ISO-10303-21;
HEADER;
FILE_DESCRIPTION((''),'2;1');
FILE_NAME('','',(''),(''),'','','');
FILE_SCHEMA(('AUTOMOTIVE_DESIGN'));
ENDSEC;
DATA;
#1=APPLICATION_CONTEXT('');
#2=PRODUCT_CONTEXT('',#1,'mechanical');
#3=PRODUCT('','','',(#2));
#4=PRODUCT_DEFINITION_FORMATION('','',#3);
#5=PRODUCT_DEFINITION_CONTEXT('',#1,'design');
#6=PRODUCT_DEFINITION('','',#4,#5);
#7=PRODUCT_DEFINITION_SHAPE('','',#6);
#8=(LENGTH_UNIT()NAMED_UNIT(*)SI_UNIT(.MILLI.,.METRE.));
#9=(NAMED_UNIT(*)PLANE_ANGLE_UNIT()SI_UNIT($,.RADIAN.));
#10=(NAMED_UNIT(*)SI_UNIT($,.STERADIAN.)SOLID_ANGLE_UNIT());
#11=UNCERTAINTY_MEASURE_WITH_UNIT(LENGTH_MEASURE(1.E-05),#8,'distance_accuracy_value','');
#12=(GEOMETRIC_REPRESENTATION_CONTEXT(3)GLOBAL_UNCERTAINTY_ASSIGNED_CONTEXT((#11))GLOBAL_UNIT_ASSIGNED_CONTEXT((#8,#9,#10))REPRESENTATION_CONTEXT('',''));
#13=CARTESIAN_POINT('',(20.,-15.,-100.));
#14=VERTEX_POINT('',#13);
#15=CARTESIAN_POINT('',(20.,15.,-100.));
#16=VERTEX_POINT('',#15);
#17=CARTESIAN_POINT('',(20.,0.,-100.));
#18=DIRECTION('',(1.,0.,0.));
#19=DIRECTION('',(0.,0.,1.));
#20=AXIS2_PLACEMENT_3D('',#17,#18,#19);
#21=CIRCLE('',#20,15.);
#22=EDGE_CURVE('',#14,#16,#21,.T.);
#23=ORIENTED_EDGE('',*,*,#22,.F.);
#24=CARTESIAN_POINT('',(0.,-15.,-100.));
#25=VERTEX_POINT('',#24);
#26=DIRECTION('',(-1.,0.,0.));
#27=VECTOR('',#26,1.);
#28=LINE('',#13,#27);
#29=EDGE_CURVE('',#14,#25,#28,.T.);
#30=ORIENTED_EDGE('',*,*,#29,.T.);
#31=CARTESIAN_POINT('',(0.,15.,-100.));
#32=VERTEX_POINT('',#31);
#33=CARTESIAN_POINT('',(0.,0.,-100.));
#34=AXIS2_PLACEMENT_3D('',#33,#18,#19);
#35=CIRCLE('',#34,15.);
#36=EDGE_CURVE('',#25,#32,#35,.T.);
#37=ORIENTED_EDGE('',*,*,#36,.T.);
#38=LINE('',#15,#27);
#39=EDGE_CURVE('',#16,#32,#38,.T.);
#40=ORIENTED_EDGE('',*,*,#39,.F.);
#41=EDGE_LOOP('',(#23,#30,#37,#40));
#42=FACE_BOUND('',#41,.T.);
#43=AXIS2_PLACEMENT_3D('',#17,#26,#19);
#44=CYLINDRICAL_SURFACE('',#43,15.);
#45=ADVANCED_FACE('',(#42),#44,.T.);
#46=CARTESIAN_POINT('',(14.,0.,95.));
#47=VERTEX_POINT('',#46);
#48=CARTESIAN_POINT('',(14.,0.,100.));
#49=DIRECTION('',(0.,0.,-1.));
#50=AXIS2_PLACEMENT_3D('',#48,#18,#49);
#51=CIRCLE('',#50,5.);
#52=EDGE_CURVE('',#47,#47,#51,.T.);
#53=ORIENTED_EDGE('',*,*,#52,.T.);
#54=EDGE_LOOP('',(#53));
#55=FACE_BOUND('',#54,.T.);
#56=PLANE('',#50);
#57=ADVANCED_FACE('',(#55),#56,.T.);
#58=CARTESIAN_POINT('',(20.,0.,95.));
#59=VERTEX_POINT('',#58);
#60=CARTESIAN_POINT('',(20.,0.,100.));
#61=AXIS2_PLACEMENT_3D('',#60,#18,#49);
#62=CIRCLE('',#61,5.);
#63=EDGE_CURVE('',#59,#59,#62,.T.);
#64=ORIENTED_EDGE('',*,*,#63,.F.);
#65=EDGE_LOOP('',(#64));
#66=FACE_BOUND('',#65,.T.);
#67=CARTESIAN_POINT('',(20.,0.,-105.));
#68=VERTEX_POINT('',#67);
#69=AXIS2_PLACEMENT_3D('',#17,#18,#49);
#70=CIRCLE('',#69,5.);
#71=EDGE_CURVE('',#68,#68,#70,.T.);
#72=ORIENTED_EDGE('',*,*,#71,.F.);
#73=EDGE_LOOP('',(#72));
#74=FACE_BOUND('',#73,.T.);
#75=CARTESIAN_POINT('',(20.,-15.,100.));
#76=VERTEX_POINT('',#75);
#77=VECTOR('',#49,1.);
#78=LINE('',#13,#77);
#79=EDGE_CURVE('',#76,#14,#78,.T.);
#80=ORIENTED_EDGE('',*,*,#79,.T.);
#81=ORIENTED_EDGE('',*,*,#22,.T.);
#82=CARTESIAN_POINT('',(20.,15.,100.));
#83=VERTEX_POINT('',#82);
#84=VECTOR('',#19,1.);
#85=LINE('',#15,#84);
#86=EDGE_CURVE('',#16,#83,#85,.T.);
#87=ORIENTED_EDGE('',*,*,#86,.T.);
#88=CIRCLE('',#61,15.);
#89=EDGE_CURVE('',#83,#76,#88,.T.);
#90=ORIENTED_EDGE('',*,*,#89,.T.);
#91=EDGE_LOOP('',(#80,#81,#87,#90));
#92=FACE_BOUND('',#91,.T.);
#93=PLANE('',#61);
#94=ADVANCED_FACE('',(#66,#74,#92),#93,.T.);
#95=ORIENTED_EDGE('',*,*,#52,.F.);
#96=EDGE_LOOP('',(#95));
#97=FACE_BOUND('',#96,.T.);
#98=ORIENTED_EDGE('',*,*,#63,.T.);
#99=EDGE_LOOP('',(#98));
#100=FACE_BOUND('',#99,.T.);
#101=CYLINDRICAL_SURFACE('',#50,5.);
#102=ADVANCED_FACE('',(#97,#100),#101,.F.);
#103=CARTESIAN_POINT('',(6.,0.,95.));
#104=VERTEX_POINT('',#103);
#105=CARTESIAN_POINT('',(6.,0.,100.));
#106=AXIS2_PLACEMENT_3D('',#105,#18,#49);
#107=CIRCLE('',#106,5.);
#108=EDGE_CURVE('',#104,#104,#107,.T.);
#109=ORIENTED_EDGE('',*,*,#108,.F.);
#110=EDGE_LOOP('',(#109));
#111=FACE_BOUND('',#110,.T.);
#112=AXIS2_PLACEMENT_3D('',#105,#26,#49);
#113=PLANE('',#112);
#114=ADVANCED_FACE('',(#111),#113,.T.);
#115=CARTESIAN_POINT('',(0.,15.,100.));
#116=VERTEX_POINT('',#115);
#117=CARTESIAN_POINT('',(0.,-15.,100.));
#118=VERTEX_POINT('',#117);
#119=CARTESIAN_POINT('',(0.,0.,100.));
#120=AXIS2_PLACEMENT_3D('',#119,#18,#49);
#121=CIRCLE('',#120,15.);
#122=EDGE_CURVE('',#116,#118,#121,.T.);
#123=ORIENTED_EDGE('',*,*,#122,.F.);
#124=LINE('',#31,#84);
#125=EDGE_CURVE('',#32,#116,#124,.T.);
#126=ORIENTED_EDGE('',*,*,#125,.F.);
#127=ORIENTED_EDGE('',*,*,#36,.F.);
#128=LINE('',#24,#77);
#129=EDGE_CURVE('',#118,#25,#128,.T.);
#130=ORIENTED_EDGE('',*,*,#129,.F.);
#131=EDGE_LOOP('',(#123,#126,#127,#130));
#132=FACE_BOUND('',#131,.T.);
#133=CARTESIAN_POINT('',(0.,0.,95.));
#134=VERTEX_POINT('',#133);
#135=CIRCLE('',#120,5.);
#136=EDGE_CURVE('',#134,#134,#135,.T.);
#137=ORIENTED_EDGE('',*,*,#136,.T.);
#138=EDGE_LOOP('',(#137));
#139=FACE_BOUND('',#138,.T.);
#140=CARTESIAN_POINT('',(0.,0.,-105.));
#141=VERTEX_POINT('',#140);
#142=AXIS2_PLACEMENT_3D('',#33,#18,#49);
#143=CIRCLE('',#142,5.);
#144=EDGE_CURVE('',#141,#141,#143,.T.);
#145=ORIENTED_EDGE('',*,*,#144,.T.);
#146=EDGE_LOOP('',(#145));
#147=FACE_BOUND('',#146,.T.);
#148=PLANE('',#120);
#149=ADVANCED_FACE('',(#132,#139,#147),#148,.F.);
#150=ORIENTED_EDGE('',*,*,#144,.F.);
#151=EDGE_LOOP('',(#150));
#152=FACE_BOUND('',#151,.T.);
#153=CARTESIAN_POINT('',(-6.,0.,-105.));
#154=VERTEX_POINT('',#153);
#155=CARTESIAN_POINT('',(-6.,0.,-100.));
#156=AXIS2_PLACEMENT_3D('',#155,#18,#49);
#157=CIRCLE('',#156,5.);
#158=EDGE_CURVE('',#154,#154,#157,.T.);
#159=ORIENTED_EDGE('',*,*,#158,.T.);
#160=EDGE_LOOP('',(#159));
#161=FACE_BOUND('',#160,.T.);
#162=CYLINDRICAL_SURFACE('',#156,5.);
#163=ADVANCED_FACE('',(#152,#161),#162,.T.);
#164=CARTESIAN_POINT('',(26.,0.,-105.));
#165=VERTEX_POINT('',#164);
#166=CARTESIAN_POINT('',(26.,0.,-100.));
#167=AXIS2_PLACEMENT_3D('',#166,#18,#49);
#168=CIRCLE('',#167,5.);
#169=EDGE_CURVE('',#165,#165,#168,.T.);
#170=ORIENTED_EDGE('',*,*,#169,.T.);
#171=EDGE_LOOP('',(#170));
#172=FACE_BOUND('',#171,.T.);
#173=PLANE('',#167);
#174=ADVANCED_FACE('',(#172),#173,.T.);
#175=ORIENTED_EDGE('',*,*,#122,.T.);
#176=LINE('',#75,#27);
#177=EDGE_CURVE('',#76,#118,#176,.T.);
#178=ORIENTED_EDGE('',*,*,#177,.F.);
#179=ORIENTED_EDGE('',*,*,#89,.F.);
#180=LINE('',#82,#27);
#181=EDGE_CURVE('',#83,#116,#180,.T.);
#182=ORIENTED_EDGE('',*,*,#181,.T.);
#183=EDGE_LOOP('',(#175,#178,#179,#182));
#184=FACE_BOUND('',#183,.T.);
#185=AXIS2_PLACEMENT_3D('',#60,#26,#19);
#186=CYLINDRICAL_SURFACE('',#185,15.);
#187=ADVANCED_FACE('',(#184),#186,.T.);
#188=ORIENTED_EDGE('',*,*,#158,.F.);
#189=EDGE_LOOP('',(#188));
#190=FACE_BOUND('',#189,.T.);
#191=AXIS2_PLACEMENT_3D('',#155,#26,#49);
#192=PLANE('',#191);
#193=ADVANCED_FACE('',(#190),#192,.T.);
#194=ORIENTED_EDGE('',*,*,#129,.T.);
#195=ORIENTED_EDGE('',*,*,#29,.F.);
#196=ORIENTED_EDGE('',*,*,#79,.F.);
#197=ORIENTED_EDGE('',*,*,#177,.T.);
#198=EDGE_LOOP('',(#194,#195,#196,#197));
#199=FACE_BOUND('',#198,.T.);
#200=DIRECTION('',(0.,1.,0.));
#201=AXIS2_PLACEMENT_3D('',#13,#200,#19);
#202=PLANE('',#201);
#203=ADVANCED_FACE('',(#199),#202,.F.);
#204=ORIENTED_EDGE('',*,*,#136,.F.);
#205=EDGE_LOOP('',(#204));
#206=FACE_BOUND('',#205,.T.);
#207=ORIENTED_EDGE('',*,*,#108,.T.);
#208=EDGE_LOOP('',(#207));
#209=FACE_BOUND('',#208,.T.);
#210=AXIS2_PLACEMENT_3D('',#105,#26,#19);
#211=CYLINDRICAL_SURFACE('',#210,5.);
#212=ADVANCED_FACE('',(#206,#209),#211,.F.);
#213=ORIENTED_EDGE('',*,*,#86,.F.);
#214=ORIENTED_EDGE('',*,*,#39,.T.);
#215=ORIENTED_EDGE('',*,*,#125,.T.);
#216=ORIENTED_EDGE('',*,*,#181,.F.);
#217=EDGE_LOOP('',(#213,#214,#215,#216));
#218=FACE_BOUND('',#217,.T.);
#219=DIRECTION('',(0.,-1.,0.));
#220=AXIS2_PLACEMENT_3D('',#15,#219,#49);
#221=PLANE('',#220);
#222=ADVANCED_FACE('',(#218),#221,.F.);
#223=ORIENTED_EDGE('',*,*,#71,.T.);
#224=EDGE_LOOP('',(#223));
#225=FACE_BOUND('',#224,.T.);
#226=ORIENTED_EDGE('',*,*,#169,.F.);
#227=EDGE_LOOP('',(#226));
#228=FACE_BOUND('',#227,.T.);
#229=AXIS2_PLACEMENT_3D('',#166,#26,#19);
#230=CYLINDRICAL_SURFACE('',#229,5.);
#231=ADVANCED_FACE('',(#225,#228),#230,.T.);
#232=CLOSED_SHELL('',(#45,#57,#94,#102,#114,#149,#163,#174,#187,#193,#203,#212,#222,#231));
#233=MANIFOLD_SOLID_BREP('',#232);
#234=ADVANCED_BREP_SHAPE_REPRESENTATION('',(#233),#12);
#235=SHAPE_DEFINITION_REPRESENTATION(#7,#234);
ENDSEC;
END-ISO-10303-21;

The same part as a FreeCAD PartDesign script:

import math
import FreeCAD as App
import Part
import Sketcher
from FreeCAD import Vector
Q = App.Units.Quantity

doc = App.newDocument("Part")
params = doc.addObject("Spreadsheet::Sheet", "Params")
for row, (alias, value) in enumerate([
    ("sketch1_radius", "15 mm"),
    ("sketch1_height", "200 mm"),
    ("pad1_length", "20 mm"),
    ("sketch2_diameter", "10 mm"),
    ("pad2_length", "6 mm"),
    ("sketch3_diameter", "10 mm"),
    ("pocket1_length", "6 mm"),
], start=1):
    params.set(f"A{row}", alias)
    params.set(f"B{row}", "=" + value)
    params.setAlias(f"B{row}", alias)

body = doc.addObject("PartDesign::Body", "Body")

# Sketch on YZ plane
sketch1 = doc.addObject("Sketcher::SketchObject", "Sketch")
body.addObject(sketch1)
sketch1.AttachmentSupport = (doc.YZ_Plane, [""])
sketch1.MapMode = "FlatFace"
sketch1.addGeometry([
    Part.LineSegment(Vector(-15, 100, 0), Vector(-15, -100, 0)),
    Part.ArcOfCircle(Part.Circle(Vector(0, -100, 0), Vector(0, 0, 1), 15), math.radians(180), math.radians(360)),
    Part.LineSegment(Vector(15, -100, 0), Vector(15, 100, 0)),
    Part.ArcOfCircle(Part.Circle(Vector(0, 100, 0), Vector(0, 0, 1), 15), math.radians(0), math.radians(180)),
], False)
sketch1.addConstraint([
    Sketcher.Constraint("Tangent", 0, 2, 1, 1),
    Sketcher.Constraint("Tangent", 1, 2, 2, 1),
    Sketcher.Constraint("Tangent", 2, 2, 3, 1),
    Sketcher.Constraint("Tangent", 3, 2, 0, 1),
    Sketcher.Constraint("Vertical", 0),
    Sketcher.Constraint("Vertical", 2),
    Sketcher.Constraint("Symmetric", 1, 3, 3, 3, -1, 1),
    Sketcher.Constraint("Radius", 1, Q("15 mm")),
    Sketcher.Constraint("DistanceY", 0, 2, 0, 1, Q("200 mm")),
])
sketch1.setExpression("Constraints[7]", "Params.sketch1_radius")
sketch1.setExpression("Constraints[8]", "Params.sketch1_height")
pad1 = doc.addObject("PartDesign::Pad", "Pad")
body.addObject(pad1)
pad1.Profile = sketch1
pad1.setExpression("Length", "Params.pad1_length")

# Sketch on YZ plane
sketch2 = doc.addObject("Sketcher::SketchObject", "Sketch001")
body.addObject(sketch2)
sketch2.AttachmentSupport = (doc.YZ_Plane, [""])
sketch2.MapMode = "FlatFace"
sketch2.AttachmentOffset = App.Placement(Vector(0, 0, 20), App.Rotation())
sketch2.addGeometry(Part.Circle(Vector(0, -100, 0), Vector(0, 0, 1), 5), False)
sketch2.addConstraint([
    Sketcher.Constraint("PointOnObject", 0, 3, -2),
    Sketcher.Constraint("Diameter", 0, Q("10 mm")),
    Sketcher.Constraint("DistanceY", 0, 3, -1, 1, Q("100 mm")),
])
sketch2.setExpression("Constraints[1]", "Params.sketch2_diameter")
pad2 = doc.addObject("PartDesign::Pad", "Pad001")
body.addObject(pad2)
pad2.Profile = sketch2
pad2.setExpression("Length", "Params.pad2_length")

# Sketch on YZ plane
sketch3 = doc.addObject("Sketcher::SketchObject", "Sketch002")
body.addObject(sketch3)
sketch3.AttachmentSupport = (doc.YZ_Plane, [""])
sketch3.MapMode = "FlatFace"
sketch3.AttachmentOffset = App.Placement(Vector(0, 0, 20), App.Rotation())
sketch3.addGeometry(Part.Circle(Vector(0, 100, 0), Vector(0, 0, 1), 5), False)
sketch3.addConstraint([
    Sketcher.Constraint("PointOnObject", 0, 3, -2),
    Sketcher.Constraint("Diameter", 0, Q("10 mm")),
    Sketcher.Constraint("DistanceY", -1, 1, 0, 3, Q("100 mm")),
])
sketch3.setExpression("Constraints[1]", "Params.sketch3_diameter")
pocket1 = doc.addObject("PartDesign::Pocket", "Pocket")
body.addObject(pocket1)
pocket1.Profile = sketch3
pocket1.setExpression("Length", "Params.pocket1_length")
doc.recompute()

datumplane = doc.addObject("PartDesign::Plane", "DatumPlane")
body.addObject(datumplane)
datumplane.AttachmentSupport = (doc.YZ_Plane, [""])
datumplane.MapMode = "FlatFace"
datumplane.AttachmentOffset = App.Placement(Vector(0, 0, 10), App.Rotation())
mirrored = doc.addObject("PartDesign::Mirrored", "Mirrored")
body.addObject(mirrored)
mirrored.Originals = [pad2, pocket1]
mirrored.MirrorPlane = (datumplane, [""])
body.Tip = mirrored

doc.recompute()
